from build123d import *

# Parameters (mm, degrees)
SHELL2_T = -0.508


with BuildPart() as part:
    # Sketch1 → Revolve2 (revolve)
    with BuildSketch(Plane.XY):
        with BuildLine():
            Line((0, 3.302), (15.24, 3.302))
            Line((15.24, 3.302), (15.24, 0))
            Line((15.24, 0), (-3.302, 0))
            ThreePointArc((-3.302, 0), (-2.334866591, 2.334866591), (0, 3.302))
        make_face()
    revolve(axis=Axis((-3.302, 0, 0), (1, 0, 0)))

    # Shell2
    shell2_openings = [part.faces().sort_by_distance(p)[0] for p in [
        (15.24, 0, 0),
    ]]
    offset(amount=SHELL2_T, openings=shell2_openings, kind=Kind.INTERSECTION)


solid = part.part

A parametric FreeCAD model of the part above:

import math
import FreeCAD as App
import Part
import Sketcher

V = App.Vector
Q = App.Units.Quantity


def faces_at(feature, points):
    """Names of the faces that lie closest to the given points."""
    faces = feature.Shape.Faces
    near = lambda p: min(range(len(faces)), key=lambda i: faces[i].distToShape(Part.Vertex(*p))[0])
    return sorted({f"Face{near(p) + 1}" for p in points})

doc = App.newDocument("Part")
params = doc.addObject("Spreadsheet::Sheet", "Params")
for row, (alias, value) in enumerate([
    ("sketch1_radius", "0.13 in"),
    ("sketch1_width", "0.6 in"),
    ("revolution_angle", "360 deg"),
    ("thickness_wall", "0.02 in"),
], start=1):
    params.set(f"A{row}", alias)
    params.set(f"B{row}", "=" + value)
    params.setAlias(f"B{row}", alias)

body = doc.addObject("PartDesign::Body", "Body")

sketch1 = doc.addObject("Sketcher::SketchObject", "Sketch")
body.addObject(sketch1)
sketch1.AttachmentSupport = (doc.XY_Plane, [""])
sketch1.MapMode = "FlatFace"
sketch1.addGeometry(Part.LineSegment(V(15.2, 3.3, 0), V(0, 3.3, 0)), False)
sketch1.addGeometry(Part.ArcOfCircle(Part.Circle(V(0, 0, 0), V(0, 0, 1), 3.3), math.radians(90), math.radians(180)), False)
sketch1.addGeometry(Part.LineSegment(V(-3.3, 0, 0), V(15.2, 0, 0)), False)
sketch1.addGeometry(Part.LineSegment(V(15.2, 0, 0), V(15.2, 3.3, 0)), False)
sketch1.addConstraint(Sketcher.Constraint("Tangent", 0, 2, 1, 1))
sketch1.addConstraint(Sketcher.Constraint("Coincident", 1, 2, 2, 1))
sketch1.addConstraint(Sketcher.Constraint("Coincident", 2, 2, 3, 1))
sketch1.addConstraint(Sketcher.Constraint("Coincident", 3, 2, 0, 1))
sketch1.addConstraint(Sketcher.Constraint("Horizontal", 0))
sketch1.addConstraint(Sketcher.Constraint("Horizontal", 2))
sketch1.addConstraint(Sketcher.Constraint("Vertical", 3))
sketch1.addConstraint(Sketcher.Constraint("Coincident", 1, 3, -1, 1))
sketch1.addConstraint(Sketcher.Constraint("PointOnObject", 1, 2, -1))
sketch1.addConstraint(Sketcher.Constraint("Radius", 1, Q("0.13 in")))
sketch1.addConstraint(Sketcher.Constraint("DistanceX", 0, 2, 0, 1, Q("0.6 in")))
sketch1.setExpression("Constraints[9]", "Params.sketch1_radius")
sketch1.setExpression("Constraints[10]", "Params.sketch1_width")
revolution = doc.addObject("PartDesign::Revolution", "Revolution")
body.addObject(revolution)
revolution.Profile = sketch1
revolution.ReferenceAxis = (sketch1, ["H_Axis"])
revolution.setExpression("Angle", "Params.revolution_angle")
doc.recompute()

thickness = doc.addObject("PartDesign::Thickness", "Thickness")
body.addObject(thickness)
thickness.Base = (revolution, faces_at(revolution, [(15.24, 0, 0)]))
thickness.setExpression("Value", "Params.thickness_wall")
thickness.Reversed = True
thickness.Join = "Intersection"

doc.recompute()
